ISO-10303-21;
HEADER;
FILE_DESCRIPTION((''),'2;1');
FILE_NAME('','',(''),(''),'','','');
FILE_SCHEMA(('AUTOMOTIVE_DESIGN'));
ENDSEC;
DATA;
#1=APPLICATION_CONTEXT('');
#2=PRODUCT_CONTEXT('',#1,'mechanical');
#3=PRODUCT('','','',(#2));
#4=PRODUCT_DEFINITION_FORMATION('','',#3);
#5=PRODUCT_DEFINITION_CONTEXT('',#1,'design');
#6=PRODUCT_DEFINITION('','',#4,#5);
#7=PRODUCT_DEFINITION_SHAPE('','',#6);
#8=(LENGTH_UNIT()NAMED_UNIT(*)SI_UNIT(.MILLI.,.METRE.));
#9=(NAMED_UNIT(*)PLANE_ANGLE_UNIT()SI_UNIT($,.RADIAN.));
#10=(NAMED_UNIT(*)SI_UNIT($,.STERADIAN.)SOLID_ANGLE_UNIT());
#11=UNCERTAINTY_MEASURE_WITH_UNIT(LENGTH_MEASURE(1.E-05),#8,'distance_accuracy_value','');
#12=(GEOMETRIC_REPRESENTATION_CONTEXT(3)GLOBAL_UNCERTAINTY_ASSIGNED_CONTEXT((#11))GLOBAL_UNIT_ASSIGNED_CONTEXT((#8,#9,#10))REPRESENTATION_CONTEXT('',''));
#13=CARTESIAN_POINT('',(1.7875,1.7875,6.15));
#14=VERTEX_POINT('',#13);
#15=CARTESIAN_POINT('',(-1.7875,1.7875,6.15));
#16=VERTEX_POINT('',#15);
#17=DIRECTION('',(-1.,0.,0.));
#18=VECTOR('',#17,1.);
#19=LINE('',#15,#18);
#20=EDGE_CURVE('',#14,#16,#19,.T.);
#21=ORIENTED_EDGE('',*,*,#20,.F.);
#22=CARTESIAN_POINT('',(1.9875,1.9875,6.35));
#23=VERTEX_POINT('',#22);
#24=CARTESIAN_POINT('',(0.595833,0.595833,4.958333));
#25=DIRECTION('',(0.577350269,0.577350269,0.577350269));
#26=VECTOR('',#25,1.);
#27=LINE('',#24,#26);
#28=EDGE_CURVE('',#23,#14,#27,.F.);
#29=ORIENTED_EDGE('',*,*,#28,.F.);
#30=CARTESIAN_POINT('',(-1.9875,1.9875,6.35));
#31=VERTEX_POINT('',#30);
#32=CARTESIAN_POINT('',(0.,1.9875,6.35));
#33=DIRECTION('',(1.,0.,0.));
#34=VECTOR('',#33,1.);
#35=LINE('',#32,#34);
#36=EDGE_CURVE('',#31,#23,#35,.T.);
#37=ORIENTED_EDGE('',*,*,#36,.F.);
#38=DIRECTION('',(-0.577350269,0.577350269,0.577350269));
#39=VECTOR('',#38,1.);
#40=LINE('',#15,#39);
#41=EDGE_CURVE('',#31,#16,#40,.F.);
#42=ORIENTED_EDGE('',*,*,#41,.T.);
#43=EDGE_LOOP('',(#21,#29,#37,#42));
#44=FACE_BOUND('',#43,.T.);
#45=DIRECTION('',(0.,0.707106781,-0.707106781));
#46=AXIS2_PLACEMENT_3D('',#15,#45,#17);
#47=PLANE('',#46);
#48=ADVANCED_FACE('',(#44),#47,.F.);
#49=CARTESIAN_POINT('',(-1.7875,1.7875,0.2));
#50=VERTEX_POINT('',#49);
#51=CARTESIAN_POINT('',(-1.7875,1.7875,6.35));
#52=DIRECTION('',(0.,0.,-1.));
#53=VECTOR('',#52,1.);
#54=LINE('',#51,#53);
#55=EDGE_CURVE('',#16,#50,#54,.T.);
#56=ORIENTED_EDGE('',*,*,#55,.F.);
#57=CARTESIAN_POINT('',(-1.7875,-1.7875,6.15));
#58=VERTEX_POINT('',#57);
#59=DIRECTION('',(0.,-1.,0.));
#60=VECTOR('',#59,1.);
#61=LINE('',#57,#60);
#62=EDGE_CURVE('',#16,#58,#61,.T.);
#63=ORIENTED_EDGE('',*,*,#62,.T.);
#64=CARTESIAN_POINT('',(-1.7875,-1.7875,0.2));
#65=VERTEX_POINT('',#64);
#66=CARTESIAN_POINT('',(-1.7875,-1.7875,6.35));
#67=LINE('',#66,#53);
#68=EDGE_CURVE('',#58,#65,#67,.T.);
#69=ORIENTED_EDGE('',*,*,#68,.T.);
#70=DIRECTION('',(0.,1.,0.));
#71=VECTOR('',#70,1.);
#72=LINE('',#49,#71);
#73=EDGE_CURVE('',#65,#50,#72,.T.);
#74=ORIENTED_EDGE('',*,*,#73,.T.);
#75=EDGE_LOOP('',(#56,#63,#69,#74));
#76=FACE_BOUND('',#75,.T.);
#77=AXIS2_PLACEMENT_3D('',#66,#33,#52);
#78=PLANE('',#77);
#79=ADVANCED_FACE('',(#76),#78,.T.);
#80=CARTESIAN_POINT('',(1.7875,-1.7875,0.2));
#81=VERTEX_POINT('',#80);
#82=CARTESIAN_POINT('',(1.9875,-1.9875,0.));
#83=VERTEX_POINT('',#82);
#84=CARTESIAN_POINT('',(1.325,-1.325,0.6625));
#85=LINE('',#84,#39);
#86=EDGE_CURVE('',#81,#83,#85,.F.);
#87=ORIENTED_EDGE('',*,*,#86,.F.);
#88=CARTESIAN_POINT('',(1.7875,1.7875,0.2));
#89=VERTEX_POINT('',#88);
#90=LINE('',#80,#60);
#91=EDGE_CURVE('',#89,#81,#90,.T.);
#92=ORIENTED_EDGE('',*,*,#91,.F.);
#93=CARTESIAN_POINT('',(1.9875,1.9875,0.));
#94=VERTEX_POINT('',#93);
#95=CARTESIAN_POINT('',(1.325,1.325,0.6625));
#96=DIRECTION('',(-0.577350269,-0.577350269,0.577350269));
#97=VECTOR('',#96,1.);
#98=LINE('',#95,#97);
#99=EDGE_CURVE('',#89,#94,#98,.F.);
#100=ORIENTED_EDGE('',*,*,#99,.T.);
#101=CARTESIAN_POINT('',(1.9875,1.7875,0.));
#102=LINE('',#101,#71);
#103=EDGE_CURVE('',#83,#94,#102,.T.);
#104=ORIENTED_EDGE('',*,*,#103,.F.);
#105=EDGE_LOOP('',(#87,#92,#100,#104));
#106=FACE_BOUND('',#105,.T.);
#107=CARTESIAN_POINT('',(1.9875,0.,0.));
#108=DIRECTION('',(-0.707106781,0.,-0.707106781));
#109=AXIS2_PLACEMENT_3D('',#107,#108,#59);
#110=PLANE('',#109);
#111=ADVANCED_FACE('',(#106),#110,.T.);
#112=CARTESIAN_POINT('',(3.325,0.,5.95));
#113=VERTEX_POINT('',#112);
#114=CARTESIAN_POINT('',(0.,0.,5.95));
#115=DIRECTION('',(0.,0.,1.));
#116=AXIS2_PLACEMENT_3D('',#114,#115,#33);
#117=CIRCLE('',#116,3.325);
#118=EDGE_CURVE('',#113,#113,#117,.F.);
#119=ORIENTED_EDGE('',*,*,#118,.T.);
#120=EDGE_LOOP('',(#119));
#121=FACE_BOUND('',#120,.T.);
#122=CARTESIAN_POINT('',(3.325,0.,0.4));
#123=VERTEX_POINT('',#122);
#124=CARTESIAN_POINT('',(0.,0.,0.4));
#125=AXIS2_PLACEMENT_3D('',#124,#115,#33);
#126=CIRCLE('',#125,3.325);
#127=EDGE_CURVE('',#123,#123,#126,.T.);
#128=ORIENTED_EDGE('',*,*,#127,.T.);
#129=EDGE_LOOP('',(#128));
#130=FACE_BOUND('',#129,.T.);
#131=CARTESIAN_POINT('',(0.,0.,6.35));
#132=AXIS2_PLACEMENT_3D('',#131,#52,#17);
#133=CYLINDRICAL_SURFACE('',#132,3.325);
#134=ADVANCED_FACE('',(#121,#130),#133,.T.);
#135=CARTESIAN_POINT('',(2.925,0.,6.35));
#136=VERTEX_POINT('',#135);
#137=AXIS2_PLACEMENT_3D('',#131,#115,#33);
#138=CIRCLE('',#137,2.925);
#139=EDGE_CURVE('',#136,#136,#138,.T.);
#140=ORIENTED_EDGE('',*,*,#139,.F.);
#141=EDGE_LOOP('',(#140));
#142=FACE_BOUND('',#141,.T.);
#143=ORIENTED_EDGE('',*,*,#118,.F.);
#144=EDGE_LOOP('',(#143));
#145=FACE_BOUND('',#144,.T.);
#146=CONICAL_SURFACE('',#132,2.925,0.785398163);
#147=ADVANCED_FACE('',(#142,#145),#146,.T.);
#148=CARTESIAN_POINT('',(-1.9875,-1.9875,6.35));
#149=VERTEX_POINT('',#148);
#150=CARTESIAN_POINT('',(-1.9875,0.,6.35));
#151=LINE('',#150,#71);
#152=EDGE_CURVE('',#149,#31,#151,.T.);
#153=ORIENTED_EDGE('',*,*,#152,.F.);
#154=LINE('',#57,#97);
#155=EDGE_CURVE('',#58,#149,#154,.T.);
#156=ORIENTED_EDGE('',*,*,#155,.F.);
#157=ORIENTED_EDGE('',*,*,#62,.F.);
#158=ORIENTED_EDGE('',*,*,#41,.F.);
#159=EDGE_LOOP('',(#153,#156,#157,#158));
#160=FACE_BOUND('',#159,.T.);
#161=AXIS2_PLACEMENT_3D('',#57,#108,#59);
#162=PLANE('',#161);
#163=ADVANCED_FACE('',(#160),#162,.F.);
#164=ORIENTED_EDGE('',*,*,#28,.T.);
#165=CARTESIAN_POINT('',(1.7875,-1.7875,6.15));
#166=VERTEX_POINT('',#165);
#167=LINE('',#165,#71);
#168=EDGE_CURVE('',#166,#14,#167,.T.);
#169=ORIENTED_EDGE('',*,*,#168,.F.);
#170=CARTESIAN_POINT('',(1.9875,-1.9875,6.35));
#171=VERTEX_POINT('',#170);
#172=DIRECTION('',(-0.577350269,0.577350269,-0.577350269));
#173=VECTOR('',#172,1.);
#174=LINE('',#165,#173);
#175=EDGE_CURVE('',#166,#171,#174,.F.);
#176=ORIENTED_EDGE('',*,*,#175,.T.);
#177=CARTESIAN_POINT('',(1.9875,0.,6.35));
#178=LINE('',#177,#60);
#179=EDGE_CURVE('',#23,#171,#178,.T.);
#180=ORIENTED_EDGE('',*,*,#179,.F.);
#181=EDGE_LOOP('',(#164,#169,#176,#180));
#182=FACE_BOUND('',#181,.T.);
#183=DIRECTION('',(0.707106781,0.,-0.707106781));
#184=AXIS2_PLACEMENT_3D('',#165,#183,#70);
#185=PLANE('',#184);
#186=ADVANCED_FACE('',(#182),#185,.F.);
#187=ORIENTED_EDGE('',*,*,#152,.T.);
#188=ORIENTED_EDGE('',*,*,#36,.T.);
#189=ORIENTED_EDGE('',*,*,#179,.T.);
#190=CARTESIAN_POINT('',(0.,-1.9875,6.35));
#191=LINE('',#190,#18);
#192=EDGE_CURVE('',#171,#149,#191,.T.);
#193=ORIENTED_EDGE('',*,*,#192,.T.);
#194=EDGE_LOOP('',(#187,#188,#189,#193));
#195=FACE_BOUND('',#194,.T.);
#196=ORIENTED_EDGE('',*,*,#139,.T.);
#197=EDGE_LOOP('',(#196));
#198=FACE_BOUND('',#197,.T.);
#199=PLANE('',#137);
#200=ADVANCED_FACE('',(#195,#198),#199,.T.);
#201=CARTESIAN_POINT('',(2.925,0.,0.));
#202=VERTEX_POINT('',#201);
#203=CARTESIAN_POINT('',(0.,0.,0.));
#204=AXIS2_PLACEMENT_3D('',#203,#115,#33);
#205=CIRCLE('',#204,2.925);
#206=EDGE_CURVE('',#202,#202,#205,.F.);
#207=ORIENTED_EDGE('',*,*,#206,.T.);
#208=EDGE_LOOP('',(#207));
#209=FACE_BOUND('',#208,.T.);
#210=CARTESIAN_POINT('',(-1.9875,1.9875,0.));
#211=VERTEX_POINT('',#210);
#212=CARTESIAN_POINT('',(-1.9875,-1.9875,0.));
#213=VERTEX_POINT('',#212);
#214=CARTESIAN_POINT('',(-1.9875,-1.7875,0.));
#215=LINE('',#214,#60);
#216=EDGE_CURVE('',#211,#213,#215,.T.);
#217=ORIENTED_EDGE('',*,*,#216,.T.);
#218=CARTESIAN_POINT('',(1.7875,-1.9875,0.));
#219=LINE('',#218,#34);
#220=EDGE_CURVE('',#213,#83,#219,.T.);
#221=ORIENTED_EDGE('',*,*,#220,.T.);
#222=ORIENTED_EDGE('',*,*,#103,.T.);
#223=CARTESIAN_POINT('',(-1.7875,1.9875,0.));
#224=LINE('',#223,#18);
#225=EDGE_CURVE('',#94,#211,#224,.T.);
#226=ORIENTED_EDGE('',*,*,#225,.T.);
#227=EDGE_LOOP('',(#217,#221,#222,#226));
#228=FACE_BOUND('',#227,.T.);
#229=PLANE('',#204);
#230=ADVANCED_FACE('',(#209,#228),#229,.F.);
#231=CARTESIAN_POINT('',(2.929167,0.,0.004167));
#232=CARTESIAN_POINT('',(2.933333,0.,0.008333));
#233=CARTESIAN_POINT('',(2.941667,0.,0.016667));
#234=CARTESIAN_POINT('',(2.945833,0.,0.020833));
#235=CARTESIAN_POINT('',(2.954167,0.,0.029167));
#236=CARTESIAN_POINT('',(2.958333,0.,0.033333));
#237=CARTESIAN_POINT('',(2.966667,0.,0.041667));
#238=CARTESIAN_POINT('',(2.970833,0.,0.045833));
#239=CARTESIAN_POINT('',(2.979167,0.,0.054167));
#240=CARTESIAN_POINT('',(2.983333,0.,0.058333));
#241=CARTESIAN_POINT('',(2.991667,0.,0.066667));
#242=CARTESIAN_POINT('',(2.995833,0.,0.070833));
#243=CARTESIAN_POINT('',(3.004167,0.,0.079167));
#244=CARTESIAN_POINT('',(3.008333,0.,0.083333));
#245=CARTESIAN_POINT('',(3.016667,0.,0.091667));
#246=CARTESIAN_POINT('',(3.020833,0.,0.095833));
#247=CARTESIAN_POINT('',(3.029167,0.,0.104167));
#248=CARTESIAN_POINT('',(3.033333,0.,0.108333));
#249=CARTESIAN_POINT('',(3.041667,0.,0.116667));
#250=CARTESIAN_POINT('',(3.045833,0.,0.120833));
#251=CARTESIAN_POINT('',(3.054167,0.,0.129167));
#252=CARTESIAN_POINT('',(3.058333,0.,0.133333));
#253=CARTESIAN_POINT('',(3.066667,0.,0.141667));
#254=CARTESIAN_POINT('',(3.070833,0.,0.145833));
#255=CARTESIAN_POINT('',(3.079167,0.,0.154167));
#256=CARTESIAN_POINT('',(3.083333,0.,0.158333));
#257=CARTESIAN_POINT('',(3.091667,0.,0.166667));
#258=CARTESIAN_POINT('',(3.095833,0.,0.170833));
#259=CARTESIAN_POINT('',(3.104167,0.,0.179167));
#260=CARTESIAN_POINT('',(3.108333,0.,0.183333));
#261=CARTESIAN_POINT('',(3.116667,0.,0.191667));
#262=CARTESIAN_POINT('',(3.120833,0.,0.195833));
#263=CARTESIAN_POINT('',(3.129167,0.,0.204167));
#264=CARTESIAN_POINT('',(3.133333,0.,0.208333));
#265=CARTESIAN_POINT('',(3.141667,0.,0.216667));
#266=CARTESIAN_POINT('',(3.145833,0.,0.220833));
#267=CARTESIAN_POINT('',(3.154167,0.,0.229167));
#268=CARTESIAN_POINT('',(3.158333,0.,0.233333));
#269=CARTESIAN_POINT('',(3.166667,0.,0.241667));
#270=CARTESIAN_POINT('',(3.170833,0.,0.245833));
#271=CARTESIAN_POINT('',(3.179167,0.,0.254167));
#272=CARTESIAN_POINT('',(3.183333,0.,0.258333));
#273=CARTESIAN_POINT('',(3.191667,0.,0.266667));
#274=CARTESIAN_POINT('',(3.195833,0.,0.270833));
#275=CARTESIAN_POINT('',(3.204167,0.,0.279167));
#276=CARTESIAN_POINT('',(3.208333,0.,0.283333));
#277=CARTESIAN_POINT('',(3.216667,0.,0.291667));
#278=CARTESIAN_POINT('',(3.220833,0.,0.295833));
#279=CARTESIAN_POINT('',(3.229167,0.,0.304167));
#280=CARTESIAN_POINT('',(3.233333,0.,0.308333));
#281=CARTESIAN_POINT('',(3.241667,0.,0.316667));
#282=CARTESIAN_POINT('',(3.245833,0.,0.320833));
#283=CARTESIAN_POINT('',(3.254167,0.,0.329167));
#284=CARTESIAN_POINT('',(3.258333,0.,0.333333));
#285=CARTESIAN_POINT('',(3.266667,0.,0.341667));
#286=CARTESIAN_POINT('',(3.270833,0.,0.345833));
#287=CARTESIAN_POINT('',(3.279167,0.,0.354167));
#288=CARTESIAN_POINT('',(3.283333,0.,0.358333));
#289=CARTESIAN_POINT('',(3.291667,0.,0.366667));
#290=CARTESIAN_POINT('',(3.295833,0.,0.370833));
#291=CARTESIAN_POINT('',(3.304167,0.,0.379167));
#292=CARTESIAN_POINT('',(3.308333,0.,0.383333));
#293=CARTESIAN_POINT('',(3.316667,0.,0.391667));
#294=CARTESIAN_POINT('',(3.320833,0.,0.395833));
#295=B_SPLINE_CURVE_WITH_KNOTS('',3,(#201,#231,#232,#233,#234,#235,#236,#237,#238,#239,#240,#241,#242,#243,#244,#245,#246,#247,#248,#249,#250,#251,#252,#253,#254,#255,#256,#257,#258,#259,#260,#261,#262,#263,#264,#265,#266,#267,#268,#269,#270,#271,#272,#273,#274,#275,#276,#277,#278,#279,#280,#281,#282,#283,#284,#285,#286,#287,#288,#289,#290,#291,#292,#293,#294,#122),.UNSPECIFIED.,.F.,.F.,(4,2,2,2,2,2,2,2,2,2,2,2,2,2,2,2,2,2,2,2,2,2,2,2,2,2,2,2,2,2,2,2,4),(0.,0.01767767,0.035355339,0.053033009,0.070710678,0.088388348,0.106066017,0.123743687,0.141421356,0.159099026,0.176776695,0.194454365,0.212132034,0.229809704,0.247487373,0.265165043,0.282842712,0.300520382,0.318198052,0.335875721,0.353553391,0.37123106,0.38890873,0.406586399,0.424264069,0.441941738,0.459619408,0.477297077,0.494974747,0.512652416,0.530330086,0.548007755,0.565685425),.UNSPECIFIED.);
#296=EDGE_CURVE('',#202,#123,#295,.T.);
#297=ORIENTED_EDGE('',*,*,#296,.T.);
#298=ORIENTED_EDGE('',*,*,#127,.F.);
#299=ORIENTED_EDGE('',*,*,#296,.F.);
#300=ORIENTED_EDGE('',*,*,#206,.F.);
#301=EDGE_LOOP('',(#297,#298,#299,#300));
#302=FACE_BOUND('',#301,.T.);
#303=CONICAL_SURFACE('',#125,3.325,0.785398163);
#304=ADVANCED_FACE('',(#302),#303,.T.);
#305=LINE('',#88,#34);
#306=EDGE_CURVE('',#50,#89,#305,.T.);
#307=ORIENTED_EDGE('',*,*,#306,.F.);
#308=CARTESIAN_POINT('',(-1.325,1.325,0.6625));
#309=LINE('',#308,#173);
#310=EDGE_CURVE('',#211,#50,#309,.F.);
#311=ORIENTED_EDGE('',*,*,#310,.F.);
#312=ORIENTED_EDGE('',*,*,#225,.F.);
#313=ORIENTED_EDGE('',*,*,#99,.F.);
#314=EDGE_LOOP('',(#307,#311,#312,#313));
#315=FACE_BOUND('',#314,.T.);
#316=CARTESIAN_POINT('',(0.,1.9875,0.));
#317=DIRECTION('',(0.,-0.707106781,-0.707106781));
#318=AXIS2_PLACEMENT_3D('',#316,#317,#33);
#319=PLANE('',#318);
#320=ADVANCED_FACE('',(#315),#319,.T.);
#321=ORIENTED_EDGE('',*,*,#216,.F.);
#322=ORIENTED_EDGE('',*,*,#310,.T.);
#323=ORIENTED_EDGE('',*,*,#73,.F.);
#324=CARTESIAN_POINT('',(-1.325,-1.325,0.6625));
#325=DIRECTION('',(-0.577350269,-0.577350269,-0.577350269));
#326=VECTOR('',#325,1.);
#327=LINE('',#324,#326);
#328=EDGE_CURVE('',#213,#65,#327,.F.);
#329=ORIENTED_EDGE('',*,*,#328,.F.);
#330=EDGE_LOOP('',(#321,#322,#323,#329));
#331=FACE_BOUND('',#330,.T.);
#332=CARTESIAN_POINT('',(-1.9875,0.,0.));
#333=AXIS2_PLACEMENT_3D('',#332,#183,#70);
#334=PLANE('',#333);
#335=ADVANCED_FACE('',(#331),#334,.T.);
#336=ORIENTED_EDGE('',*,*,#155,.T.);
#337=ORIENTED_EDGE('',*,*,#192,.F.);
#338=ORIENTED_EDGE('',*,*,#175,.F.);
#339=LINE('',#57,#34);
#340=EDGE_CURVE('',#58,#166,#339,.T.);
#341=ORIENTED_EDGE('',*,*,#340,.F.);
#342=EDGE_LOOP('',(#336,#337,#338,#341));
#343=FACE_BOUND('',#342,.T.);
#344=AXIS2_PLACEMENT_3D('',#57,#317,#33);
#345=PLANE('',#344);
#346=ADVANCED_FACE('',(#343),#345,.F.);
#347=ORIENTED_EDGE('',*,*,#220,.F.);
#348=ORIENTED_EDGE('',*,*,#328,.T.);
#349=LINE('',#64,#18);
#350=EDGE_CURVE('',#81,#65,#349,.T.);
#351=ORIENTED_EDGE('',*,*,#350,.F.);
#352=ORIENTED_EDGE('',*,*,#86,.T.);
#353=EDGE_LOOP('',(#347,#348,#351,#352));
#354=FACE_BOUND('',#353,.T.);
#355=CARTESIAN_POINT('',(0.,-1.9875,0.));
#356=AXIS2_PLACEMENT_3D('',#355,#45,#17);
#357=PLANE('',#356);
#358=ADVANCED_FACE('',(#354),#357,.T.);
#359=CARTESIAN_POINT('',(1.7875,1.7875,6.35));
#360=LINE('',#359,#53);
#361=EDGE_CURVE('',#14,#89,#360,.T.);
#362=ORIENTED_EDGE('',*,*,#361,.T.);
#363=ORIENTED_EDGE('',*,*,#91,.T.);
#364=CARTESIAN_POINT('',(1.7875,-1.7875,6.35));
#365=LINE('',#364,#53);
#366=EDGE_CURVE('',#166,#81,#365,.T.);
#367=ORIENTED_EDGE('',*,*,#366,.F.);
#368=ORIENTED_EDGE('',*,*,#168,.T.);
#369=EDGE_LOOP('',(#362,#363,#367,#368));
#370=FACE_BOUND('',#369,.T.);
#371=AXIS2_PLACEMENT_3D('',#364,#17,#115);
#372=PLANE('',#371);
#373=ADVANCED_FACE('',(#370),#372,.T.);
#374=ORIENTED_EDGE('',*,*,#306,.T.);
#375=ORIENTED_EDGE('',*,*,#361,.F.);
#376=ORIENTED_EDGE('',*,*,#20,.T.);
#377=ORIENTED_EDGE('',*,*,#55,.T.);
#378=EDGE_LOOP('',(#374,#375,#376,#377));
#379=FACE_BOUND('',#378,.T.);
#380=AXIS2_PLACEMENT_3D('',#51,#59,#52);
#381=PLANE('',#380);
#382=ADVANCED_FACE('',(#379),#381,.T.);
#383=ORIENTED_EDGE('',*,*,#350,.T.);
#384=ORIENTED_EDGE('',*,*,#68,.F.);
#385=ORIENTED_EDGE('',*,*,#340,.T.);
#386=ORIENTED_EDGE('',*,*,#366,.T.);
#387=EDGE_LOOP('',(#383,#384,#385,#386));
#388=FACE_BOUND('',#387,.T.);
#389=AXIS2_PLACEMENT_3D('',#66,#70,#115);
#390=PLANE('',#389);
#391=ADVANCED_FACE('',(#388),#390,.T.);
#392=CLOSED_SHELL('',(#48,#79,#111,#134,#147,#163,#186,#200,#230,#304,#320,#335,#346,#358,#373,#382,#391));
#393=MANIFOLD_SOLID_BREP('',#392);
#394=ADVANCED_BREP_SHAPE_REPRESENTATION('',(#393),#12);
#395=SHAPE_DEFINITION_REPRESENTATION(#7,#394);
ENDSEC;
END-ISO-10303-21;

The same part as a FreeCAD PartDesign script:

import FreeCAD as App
import Part
import Sketcher
from FreeCAD import Vector


def edges_at(feature, points):
    """Names of the edges that pass closest to the given points."""
    edges = feature.Shape.Edges
    near = lambda p: min(range(len(edges)), key=lambda i: edges[i].distToShape(Part.Vertex(*p))[0])
    return sorted({f"Edge{near(p) + 1}" for p in points})


def add_polygon(sketch, points):
    """Adds a closed chain of lines whose ends are joined by coincident constraints."""
    first, n = sketch.GeometryCount, len(points)
    for a, b in zip(points, points[1:] + points[:1]):
        sketch.addGeometry(Part.LineSegment(App.Vector(*a, 0), App.Vector(*b, 0)), False)
    for i in range(n):
        sketch.addConstraint(Sketcher.Constraint("Coincident", first + i, 2, first + (i + 1) % n, 1))

doc = App.newDocument("Part")
body = doc.addObject("PartDesign::Body", "Body")

sketch1 = doc.addObject("Sketcher::SketchObject", "Sketch")
body.addObject(sketch1)
sketch1.AttachmentSupport = (doc.XY_Plane, [""])
sketch1.MapMode = "FlatFace"
sketch1.addGeometry(Part.Circle(Vector(0, 0, 0), Vector(0, 0, 1), 3.3), False)
add_polygon(sketch1, [(1.8, -1.8), (-1.8, -1.8), (-1.8, 1.8), (1.8, 1.8)])
sketch1.addConstraint([
    Sketcher.Constraint("Horizontal", 1),
    Sketcher.Constraint("Vertical", 2),
    Sketcher.Constraint("Horizontal", 3),
    Sketcher.Constraint("Vertical", 4),
    Sketcher.Constraint("Coincident", 0, 3, -1, 1),
    Sketcher.Constraint("Symmetric", 1, 2, 3, 2, -1, 1),
    Sketcher.Constraint("Equal", 3, 2),
    Sketcher.Constraint("Diameter", 0, 6.65),
    Sketcher.Constraint("DistanceX", 1, 2, 1, 1, 3.575),
])
pad1 = doc.addObject("PartDesign::Pad", "Pad")
body.addObject(pad1)
pad1.Profile = sketch1
pad1.Length = 6.35
doc.recompute()

chamfer = doc.addObject("PartDesign::Chamfer", "Chamfer")
body.addObject(chamfer)
chamfer.Base = (pad1, edges_at(pad1, [(-3.325, 0, 0), (-3.325, 0, 6.35)]))
chamfer.Size = 0.4
doc.recompute()

chamfer2 = doc.addObject("PartDesign::Chamfer", "Chamfer001")
body.addObject(chamfer2)
chamfer2.Base = (chamfer, edges_at(chamfer, [
    (0, -1.788, 6.35),
    (1.788, 0, 0),
    (0, 1.788, 0),
    (-1.788, 0, 0),
    (0, -1.788, 0),
    (1.788, 0, 6.35),
    (0, 1.788, 6.35),
    (-1.788, 0, 6.35),
]))
chamfer2.Size = 0.2

doc.recompute()
